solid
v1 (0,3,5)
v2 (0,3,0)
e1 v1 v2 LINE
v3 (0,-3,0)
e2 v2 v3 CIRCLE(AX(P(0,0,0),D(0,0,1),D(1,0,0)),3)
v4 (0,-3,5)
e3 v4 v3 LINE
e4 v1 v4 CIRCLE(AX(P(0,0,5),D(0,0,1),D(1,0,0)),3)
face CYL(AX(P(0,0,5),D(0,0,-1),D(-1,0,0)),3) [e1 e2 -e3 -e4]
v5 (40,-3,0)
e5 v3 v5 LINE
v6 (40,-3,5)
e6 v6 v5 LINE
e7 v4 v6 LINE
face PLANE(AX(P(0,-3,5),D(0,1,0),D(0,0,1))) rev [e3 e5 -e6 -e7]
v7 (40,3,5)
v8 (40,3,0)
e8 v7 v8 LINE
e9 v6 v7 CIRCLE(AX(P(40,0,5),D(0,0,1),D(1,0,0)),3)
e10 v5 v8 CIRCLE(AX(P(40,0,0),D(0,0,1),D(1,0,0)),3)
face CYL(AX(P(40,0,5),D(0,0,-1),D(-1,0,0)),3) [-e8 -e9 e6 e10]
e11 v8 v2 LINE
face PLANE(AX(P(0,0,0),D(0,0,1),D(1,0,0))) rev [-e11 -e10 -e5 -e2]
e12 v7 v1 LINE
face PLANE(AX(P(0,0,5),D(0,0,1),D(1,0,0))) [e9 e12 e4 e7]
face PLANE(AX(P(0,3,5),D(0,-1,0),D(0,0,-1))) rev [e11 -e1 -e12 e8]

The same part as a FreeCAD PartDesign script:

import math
import FreeCAD as App
import Part
import Sketcher
Q = App.Units.Quantity

doc = App.newDocument("Part")
params = doc.addObject("Spreadsheet::Sheet", "Params")
for row, (alias, value) in enumerate([
    ("sketch1_radius", "3 mm"),
    ("sketch1_width", "40 mm"),
    ("pad1_length", "5 mm"),
], start=1):
    params.set(f"A{row}", alias)
    params.set(f"B{row}", "=" + value)
    params.setAlias(f"B{row}", alias)

body = doc.addObject("PartDesign::Body", "Body")

sketch1 = body.newObject("Sketcher::SketchObject", "Sketch")
sketch1.AttachmentSupport = (doc.getObject("XY_Plane"), [""])
sketch1.MapMode = "FlatFace"
sketch1.addGeometry([
    Part.LineSegment(App.Vector(40, 3, 0), App.Vector(0, 3, 0)),
    Part.ArcOfCircle(Part.Circle(App.Vector(0, 0, 0), App.Vector(0, 0, 1), 3), math.radians(90), math.radians(270)),
    Part.LineSegment(App.Vector(0, -3, 0), App.Vector(40, -3, 0)),
    Part.ArcOfCircle(Part.Circle(App.Vector(40, 0, 0), App.Vector(0, 0, 1), 3), math.radians(-90), math.radians(90)),
], False)
sketch1.addConstraint([
    Sketcher.Constraint("Tangent", 0, 2, 1, 1),
    Sketcher.Constraint("Tangent", 1, 2, 2, 1),
    Sketcher.Constraint("Tangent", 2, 2, 3, 1),
    Sketcher.Constraint("Tangent", 3, 2, 0, 1),
    Sketcher.Constraint("Horizontal", 0),
    Sketcher.Constraint("Horizontal", 2),
    Sketcher.Constraint("Coincident", 1, 3, -1, 1),
    Sketcher.Constraint("Radius", 1, Q("3 mm")),
    Sketcher.Constraint("DistanceX", 0, 2, 0, 1, Q("40 mm")),
])
sketch1.setExpression("Constraints[7]", "Params.sketch1_radius")
sketch1.setExpression("Constraints[8]", "Params.sketch1_width")
pad1 = body.newObject("PartDesign::Pad", "Pad")
pad1.Profile = sketch1
pad1.setExpression("Length", "Params.pad1_length")

doc.recompute()
